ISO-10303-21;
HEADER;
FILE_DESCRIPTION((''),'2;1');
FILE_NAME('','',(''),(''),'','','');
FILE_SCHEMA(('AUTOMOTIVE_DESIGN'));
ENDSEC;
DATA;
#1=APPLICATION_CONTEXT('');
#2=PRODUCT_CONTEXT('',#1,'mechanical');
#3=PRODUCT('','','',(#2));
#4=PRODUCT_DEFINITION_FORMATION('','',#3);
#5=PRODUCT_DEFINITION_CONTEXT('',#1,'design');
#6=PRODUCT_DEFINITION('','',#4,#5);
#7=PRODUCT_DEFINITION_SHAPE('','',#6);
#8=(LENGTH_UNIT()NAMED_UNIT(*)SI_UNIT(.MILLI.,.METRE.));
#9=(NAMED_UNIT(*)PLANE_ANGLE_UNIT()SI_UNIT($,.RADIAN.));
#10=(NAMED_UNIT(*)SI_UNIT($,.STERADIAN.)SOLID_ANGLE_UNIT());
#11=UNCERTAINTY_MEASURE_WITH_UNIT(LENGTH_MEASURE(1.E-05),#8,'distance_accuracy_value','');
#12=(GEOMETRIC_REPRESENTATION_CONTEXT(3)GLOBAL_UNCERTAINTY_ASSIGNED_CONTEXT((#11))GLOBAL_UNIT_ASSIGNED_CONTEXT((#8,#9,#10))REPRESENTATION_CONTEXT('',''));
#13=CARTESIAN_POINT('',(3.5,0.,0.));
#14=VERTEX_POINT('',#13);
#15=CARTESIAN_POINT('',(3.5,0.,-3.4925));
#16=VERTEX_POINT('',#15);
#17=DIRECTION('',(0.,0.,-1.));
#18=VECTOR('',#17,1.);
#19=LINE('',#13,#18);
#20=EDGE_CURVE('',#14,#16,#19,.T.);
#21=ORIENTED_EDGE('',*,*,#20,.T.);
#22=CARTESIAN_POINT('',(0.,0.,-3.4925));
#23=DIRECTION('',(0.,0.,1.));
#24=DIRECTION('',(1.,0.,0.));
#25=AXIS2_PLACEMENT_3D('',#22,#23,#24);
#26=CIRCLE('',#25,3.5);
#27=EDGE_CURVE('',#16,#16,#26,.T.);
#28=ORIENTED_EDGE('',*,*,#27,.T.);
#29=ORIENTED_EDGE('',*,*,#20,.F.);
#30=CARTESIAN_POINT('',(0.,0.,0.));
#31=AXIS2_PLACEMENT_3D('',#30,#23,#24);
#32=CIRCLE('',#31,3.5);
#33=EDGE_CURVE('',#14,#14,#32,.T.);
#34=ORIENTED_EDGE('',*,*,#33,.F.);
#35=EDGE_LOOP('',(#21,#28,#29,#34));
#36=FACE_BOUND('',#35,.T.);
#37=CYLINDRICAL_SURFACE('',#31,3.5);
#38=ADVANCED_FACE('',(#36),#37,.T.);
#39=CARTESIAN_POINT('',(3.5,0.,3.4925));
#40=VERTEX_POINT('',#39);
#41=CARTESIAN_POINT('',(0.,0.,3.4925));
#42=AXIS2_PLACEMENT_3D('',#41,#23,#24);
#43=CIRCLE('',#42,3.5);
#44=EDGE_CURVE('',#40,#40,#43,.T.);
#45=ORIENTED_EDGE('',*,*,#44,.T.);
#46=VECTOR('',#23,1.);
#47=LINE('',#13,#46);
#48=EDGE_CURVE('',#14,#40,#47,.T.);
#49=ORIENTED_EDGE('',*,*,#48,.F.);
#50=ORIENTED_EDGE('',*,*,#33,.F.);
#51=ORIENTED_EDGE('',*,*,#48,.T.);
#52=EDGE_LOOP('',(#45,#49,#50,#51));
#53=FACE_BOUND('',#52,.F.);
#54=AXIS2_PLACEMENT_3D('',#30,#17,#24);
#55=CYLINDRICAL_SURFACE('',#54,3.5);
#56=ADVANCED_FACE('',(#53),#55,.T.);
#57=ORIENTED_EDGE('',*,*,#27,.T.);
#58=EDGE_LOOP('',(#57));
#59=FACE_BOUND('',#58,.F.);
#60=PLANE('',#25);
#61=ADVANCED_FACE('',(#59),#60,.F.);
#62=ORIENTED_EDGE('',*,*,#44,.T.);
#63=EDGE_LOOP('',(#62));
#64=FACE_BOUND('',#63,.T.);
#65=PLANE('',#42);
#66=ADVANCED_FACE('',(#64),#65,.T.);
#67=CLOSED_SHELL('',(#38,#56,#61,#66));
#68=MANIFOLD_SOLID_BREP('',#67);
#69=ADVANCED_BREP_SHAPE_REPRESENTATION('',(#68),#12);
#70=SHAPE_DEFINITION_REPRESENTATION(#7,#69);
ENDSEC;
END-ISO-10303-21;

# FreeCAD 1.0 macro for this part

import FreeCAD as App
import Part
import Sketcher

doc = App.newDocument("Part")
body = doc.addObject("PartDesign::Body", "Body")

# Sketch on XY plane
sketch1 = doc.addObject("Sketcher::SketchObject", "Sketch")
body.addObject(sketch1)
sketch1.AttachmentSupport = (doc.XY_Plane, [""])
sketch1.MapMode = "FlatFace"
sketch1.addGeometry(Part.Circle(App.Vector(0, 0, 0), App.Vector(0, 0, 1), 3.5), False)
sketch1.addConstraint([
    Sketcher.Constraint("Coincident", 0, 3, -1, 1),
    Sketcher.Constraint("Diameter", 0, 7.0),
])
pad1 = doc.addObject("PartDesign::Pad", "Pad")
body.addObject(pad1)
pad1.Profile = sketch1
pad1.Length = 6.985
pad1.Midplane = True

doc.recompute()
